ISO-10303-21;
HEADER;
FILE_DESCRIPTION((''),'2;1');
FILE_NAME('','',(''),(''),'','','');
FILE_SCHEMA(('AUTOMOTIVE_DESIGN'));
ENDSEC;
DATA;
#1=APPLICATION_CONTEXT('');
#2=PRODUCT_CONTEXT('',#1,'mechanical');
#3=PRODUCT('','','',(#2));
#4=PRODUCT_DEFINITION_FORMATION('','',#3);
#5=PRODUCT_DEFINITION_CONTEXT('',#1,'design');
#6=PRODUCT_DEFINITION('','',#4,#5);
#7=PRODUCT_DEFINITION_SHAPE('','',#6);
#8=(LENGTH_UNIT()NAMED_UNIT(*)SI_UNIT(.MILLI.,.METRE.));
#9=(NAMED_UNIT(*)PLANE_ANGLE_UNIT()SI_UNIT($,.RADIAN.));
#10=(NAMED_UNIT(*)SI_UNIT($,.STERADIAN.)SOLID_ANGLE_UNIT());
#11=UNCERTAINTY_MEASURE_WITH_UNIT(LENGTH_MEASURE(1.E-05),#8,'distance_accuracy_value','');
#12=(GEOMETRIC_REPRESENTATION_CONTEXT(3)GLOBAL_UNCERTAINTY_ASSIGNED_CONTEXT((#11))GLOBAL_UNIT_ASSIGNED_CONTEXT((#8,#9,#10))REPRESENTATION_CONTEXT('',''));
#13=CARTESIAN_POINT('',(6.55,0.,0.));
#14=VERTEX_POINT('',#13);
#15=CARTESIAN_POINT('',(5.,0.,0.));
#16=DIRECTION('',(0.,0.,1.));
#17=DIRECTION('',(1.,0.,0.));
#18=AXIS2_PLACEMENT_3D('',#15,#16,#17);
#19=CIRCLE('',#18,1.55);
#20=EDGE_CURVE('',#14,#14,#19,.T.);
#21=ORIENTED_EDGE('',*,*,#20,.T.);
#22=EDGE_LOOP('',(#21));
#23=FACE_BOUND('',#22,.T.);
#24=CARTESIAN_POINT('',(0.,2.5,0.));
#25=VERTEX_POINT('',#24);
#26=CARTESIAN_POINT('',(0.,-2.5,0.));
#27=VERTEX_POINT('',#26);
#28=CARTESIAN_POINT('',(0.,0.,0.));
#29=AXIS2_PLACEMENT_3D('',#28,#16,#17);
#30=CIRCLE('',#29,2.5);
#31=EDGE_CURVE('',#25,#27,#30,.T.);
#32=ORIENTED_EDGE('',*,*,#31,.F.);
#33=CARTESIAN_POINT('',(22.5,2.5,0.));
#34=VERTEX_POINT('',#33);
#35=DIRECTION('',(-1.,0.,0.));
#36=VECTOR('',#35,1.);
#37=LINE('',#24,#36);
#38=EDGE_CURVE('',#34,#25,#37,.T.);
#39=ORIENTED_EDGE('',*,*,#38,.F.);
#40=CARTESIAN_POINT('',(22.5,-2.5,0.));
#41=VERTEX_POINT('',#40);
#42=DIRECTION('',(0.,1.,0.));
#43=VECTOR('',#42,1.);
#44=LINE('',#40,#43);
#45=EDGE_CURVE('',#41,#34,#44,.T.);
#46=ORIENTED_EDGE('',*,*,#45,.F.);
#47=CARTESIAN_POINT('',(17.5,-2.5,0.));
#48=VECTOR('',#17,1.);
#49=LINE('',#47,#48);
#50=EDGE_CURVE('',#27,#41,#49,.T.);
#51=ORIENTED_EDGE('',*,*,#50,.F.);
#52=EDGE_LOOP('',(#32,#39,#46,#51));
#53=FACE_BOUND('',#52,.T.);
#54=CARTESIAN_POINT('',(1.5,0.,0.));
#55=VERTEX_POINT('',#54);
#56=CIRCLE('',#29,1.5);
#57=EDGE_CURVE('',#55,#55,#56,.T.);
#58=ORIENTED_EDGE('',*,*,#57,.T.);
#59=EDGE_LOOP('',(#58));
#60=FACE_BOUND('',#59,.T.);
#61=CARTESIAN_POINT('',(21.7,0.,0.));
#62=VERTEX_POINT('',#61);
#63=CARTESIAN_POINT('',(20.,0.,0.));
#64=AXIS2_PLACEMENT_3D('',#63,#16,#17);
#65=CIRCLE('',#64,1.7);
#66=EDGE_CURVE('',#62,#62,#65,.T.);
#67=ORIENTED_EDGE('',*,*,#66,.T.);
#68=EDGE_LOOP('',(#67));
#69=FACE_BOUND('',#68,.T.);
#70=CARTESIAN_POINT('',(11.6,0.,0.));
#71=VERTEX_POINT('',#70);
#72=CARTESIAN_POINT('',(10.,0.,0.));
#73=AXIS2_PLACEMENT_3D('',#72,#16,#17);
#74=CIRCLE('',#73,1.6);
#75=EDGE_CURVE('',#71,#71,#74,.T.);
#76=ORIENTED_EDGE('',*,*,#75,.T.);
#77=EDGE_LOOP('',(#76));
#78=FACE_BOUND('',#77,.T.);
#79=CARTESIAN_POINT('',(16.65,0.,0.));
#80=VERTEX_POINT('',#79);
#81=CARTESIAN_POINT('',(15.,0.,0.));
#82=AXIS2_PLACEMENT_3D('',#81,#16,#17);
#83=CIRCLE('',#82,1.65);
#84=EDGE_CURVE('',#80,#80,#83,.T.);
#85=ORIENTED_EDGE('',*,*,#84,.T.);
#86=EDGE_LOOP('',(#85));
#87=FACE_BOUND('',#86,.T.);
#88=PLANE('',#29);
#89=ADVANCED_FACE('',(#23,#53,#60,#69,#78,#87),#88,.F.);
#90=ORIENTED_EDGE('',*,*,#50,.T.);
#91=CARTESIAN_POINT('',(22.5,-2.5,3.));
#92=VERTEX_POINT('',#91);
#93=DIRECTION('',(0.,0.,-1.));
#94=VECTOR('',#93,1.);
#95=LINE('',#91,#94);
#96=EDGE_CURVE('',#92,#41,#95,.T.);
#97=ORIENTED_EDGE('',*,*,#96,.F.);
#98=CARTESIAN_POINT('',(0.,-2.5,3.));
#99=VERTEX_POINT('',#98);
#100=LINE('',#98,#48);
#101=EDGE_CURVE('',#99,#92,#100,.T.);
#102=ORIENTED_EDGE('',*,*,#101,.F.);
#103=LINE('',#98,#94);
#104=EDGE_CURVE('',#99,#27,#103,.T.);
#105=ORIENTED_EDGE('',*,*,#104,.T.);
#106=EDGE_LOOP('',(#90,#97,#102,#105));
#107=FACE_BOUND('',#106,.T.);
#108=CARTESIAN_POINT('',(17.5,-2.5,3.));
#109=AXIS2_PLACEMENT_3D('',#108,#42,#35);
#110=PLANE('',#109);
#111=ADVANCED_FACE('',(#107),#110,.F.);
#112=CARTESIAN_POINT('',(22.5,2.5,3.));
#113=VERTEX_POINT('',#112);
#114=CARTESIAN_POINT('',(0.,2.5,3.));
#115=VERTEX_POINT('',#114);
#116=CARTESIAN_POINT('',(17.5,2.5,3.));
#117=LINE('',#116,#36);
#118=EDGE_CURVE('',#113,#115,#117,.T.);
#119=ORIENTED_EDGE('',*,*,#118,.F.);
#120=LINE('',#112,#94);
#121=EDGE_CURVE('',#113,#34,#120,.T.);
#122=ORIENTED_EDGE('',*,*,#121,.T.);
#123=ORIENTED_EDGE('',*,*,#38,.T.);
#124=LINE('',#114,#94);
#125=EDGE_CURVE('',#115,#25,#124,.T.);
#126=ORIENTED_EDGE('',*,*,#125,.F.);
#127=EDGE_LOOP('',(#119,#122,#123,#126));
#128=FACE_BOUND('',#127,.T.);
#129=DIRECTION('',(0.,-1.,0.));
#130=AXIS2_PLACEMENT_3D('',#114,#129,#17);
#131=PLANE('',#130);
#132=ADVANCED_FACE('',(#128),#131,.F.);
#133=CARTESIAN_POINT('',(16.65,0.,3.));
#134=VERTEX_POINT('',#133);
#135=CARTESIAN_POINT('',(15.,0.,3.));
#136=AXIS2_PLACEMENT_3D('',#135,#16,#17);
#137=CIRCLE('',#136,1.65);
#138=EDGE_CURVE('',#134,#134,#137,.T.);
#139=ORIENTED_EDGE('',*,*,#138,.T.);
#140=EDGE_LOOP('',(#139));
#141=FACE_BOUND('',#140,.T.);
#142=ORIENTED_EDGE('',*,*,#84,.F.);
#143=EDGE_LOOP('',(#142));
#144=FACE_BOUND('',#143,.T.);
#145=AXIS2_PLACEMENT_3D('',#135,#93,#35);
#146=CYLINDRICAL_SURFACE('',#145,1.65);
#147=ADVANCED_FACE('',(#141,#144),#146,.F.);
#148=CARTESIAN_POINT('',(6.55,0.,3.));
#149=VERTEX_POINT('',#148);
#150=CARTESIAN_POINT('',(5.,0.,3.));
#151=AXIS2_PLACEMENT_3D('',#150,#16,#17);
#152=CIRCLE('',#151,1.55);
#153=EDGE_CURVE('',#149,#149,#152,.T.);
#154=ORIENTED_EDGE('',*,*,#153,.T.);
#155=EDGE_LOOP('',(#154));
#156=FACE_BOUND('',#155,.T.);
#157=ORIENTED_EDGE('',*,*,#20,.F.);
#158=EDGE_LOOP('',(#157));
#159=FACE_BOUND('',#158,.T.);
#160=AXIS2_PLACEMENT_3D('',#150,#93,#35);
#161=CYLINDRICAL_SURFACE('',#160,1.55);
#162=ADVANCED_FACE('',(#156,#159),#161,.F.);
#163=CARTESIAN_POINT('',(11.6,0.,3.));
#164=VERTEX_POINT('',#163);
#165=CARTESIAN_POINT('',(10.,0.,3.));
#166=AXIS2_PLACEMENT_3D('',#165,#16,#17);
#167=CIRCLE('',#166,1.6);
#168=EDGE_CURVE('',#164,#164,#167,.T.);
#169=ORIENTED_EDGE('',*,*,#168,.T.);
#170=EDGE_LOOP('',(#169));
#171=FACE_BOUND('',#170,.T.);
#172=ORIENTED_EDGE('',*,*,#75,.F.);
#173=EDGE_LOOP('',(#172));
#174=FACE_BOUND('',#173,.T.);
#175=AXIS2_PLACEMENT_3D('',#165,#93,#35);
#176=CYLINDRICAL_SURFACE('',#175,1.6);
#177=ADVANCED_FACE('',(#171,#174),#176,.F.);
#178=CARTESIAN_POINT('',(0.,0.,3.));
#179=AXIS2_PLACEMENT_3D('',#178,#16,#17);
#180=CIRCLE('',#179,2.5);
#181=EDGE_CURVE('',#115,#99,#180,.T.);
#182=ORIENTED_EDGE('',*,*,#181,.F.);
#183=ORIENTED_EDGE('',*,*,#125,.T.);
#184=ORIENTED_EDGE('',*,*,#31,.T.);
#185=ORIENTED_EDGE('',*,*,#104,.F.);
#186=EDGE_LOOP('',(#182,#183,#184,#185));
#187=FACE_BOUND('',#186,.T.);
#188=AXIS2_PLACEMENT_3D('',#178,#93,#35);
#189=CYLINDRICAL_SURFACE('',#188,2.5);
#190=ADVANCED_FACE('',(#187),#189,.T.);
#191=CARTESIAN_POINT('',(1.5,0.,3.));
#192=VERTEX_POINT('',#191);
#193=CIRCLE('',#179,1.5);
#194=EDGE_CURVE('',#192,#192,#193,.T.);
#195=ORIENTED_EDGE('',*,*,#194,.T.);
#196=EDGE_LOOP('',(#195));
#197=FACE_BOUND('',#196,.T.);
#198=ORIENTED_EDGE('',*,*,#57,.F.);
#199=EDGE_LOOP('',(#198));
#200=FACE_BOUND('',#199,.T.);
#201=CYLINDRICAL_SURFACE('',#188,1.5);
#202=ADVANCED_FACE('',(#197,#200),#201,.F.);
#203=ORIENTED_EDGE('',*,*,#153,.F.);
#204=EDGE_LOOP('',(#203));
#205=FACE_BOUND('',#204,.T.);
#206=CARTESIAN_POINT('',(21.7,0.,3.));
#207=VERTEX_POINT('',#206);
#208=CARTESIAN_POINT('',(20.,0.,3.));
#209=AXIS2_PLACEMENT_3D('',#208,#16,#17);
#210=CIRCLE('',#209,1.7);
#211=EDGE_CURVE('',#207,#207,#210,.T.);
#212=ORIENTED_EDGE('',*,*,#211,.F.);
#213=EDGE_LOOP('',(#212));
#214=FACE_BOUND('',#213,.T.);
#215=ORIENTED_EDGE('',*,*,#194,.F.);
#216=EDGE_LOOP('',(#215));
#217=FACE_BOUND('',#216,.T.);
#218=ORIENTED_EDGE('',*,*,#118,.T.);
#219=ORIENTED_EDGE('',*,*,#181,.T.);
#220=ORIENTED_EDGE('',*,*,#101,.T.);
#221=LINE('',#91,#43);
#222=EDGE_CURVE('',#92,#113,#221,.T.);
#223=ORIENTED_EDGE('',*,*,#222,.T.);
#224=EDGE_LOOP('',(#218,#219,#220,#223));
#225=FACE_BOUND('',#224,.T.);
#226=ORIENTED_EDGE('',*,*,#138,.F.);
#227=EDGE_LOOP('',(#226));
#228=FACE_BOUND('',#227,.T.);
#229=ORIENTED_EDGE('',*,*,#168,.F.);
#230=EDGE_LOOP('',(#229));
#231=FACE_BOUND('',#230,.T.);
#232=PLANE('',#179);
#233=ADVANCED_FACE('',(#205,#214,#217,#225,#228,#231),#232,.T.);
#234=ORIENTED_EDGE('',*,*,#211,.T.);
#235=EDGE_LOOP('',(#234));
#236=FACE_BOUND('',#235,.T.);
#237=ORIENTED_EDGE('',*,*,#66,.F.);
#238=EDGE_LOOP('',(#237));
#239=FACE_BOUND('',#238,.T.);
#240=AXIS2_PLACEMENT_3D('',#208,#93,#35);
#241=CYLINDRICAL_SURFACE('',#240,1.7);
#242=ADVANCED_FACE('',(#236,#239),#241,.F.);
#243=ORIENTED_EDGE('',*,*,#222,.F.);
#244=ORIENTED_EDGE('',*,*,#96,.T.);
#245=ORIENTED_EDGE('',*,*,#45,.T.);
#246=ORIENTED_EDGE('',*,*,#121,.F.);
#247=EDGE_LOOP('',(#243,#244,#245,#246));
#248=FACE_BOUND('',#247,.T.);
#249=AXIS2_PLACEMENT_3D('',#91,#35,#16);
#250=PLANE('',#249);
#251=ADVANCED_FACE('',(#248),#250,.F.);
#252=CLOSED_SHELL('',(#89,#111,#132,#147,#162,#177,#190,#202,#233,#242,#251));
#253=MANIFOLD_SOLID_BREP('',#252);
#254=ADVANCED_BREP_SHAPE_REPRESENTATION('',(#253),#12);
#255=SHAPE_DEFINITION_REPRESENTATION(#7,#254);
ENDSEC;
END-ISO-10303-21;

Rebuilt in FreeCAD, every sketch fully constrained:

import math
import FreeCAD as App
import Part
import Sketcher

doc = App.newDocument("Part")
body = doc.addObject("PartDesign::Body", "Body")

sketch1 = body.newObject("Sketcher::SketchObject", "Sketch")
sketch1.AttachmentSupport = (doc.getObject("XY_Plane"), [""])
sketch1.MapMode = "FlatFace"
sketch1.addGeometry(Part.LineSegment(App.Vector(22.5, 2.5, 0), App.Vector(0, 2.5, 0)), False)
sketch1.addGeometry(Part.ArcOfCircle(Part.Circle(App.Vector(0, 0, 0), App.Vector(0, 0, 1), 2.5), math.radians(90), math.radians(270)), False)
sketch1.addGeometry(Part.LineSegment(App.Vector(0, -2.5, 0), App.Vector(22.5, -2.5, 0)), False)
sketch1.addGeometry(Part.LineSegment(App.Vector(22.5, -2.5, 0), App.Vector(22.5, 2.5, 0)), False)
sketch1.addGeometry(Part.Circle(App.Vector(20, 0, 0), App.Vector(0, 0, 1), 1.7), False)
sketch1.addGeometry(Part.Circle(App.Vector(15, 0, 0), App.Vector(0, 0, 1), 1.6), False)
sketch1.addGeometry(Part.Circle(App.Vector(10, 0, 0), App.Vector(0, 0, 1), 1.6), False)
sketch1.addGeometry(Part.Circle(App.Vector(5, 0, 0), App.Vector(0, 0, 1), 1.6), False)
sketch1.addGeometry(Part.Circle(App.Vector(0, 0, 0), App.Vector(0, 0, 1), 1.5), False)
sketch1.addConstraint(Sketcher.Constraint("Tangent", 0, 2, 1, 1))
sketch1.addConstraint(Sketcher.Constraint("Tangent", 1, 2, 2, 1))
sketch1.addConstraint(Sketcher.Constraint("Coincident", 2, 2, 3, 1))
sketch1.addConstraint(Sketcher.Constraint("Coincident", 3, 2, 0, 1))
sketch1.addConstraint(Sketcher.Constraint("Horizontal", 0))
sketch1.addConstraint(Sketcher.Constraint("Horizontal", 2))
sketch1.addConstraint(Sketcher.Constraint("Vertical", 3))
sketch1.addConstraint(Sketcher.Constraint("Coincident", 1, 3, -1, 1))
sketch1.addConstraint(Sketcher.Constraint("Coincident", 8, 3, -1, 1))
sketch1.addConstraint(Sketcher.Constraint("PointOnObject", 4, 3, -1))
sketch1.addConstraint(Sketcher.Constraint("PointOnObject", 5, 3, -1))
sketch1.addConstraint(Sketcher.Constraint("PointOnObject", 6, 3, -1))
sketch1.addConstraint(Sketcher.Constraint("PointOnObject", 7, 3, -1))
sketch1.addConstraint(Sketcher.Constraint("Diameter", 8, 3.0))
sketch1.addConstraint(Sketcher.Constraint("Diameter", 4, 3.4))
sketch1.addConstraint(Sketcher.Constraint("Diameter", 5, 3.3))
sketch1.addConstraint(Sketcher.Constraint("Diameter", 6, 3.2))
sketch1.addConstraint(Sketcher.Constraint("Diameter", 7, 3.1))
sketch1.addConstraint(Sketcher.Constraint("Radius", 1, 2.5))
sketch1.addConstraint(Sketcher.Constraint("DistanceX", 0, 2, 0, 1, 22.5))
sketch1.addConstraint(Sketcher.Constraint("DistanceX", -1, 1, 4, 3, 20.0))
sketch1.addConstraint(Sketcher.Constraint("DistanceX", -1, 1, 5, 3, 15.0))
sketch1.addConstraint(Sketcher.Constraint("DistanceX", -1, 1, 6, 3, 10.0))
sketch1.addConstraint(Sketcher.Constraint("DistanceX", -1, 1, 7, 3, 5.0))
pad1 = body.newObject("PartDesign::Pad", "Pad")
pad1.Profile = sketch1
pad1.Length = 3

doc.recompute()
